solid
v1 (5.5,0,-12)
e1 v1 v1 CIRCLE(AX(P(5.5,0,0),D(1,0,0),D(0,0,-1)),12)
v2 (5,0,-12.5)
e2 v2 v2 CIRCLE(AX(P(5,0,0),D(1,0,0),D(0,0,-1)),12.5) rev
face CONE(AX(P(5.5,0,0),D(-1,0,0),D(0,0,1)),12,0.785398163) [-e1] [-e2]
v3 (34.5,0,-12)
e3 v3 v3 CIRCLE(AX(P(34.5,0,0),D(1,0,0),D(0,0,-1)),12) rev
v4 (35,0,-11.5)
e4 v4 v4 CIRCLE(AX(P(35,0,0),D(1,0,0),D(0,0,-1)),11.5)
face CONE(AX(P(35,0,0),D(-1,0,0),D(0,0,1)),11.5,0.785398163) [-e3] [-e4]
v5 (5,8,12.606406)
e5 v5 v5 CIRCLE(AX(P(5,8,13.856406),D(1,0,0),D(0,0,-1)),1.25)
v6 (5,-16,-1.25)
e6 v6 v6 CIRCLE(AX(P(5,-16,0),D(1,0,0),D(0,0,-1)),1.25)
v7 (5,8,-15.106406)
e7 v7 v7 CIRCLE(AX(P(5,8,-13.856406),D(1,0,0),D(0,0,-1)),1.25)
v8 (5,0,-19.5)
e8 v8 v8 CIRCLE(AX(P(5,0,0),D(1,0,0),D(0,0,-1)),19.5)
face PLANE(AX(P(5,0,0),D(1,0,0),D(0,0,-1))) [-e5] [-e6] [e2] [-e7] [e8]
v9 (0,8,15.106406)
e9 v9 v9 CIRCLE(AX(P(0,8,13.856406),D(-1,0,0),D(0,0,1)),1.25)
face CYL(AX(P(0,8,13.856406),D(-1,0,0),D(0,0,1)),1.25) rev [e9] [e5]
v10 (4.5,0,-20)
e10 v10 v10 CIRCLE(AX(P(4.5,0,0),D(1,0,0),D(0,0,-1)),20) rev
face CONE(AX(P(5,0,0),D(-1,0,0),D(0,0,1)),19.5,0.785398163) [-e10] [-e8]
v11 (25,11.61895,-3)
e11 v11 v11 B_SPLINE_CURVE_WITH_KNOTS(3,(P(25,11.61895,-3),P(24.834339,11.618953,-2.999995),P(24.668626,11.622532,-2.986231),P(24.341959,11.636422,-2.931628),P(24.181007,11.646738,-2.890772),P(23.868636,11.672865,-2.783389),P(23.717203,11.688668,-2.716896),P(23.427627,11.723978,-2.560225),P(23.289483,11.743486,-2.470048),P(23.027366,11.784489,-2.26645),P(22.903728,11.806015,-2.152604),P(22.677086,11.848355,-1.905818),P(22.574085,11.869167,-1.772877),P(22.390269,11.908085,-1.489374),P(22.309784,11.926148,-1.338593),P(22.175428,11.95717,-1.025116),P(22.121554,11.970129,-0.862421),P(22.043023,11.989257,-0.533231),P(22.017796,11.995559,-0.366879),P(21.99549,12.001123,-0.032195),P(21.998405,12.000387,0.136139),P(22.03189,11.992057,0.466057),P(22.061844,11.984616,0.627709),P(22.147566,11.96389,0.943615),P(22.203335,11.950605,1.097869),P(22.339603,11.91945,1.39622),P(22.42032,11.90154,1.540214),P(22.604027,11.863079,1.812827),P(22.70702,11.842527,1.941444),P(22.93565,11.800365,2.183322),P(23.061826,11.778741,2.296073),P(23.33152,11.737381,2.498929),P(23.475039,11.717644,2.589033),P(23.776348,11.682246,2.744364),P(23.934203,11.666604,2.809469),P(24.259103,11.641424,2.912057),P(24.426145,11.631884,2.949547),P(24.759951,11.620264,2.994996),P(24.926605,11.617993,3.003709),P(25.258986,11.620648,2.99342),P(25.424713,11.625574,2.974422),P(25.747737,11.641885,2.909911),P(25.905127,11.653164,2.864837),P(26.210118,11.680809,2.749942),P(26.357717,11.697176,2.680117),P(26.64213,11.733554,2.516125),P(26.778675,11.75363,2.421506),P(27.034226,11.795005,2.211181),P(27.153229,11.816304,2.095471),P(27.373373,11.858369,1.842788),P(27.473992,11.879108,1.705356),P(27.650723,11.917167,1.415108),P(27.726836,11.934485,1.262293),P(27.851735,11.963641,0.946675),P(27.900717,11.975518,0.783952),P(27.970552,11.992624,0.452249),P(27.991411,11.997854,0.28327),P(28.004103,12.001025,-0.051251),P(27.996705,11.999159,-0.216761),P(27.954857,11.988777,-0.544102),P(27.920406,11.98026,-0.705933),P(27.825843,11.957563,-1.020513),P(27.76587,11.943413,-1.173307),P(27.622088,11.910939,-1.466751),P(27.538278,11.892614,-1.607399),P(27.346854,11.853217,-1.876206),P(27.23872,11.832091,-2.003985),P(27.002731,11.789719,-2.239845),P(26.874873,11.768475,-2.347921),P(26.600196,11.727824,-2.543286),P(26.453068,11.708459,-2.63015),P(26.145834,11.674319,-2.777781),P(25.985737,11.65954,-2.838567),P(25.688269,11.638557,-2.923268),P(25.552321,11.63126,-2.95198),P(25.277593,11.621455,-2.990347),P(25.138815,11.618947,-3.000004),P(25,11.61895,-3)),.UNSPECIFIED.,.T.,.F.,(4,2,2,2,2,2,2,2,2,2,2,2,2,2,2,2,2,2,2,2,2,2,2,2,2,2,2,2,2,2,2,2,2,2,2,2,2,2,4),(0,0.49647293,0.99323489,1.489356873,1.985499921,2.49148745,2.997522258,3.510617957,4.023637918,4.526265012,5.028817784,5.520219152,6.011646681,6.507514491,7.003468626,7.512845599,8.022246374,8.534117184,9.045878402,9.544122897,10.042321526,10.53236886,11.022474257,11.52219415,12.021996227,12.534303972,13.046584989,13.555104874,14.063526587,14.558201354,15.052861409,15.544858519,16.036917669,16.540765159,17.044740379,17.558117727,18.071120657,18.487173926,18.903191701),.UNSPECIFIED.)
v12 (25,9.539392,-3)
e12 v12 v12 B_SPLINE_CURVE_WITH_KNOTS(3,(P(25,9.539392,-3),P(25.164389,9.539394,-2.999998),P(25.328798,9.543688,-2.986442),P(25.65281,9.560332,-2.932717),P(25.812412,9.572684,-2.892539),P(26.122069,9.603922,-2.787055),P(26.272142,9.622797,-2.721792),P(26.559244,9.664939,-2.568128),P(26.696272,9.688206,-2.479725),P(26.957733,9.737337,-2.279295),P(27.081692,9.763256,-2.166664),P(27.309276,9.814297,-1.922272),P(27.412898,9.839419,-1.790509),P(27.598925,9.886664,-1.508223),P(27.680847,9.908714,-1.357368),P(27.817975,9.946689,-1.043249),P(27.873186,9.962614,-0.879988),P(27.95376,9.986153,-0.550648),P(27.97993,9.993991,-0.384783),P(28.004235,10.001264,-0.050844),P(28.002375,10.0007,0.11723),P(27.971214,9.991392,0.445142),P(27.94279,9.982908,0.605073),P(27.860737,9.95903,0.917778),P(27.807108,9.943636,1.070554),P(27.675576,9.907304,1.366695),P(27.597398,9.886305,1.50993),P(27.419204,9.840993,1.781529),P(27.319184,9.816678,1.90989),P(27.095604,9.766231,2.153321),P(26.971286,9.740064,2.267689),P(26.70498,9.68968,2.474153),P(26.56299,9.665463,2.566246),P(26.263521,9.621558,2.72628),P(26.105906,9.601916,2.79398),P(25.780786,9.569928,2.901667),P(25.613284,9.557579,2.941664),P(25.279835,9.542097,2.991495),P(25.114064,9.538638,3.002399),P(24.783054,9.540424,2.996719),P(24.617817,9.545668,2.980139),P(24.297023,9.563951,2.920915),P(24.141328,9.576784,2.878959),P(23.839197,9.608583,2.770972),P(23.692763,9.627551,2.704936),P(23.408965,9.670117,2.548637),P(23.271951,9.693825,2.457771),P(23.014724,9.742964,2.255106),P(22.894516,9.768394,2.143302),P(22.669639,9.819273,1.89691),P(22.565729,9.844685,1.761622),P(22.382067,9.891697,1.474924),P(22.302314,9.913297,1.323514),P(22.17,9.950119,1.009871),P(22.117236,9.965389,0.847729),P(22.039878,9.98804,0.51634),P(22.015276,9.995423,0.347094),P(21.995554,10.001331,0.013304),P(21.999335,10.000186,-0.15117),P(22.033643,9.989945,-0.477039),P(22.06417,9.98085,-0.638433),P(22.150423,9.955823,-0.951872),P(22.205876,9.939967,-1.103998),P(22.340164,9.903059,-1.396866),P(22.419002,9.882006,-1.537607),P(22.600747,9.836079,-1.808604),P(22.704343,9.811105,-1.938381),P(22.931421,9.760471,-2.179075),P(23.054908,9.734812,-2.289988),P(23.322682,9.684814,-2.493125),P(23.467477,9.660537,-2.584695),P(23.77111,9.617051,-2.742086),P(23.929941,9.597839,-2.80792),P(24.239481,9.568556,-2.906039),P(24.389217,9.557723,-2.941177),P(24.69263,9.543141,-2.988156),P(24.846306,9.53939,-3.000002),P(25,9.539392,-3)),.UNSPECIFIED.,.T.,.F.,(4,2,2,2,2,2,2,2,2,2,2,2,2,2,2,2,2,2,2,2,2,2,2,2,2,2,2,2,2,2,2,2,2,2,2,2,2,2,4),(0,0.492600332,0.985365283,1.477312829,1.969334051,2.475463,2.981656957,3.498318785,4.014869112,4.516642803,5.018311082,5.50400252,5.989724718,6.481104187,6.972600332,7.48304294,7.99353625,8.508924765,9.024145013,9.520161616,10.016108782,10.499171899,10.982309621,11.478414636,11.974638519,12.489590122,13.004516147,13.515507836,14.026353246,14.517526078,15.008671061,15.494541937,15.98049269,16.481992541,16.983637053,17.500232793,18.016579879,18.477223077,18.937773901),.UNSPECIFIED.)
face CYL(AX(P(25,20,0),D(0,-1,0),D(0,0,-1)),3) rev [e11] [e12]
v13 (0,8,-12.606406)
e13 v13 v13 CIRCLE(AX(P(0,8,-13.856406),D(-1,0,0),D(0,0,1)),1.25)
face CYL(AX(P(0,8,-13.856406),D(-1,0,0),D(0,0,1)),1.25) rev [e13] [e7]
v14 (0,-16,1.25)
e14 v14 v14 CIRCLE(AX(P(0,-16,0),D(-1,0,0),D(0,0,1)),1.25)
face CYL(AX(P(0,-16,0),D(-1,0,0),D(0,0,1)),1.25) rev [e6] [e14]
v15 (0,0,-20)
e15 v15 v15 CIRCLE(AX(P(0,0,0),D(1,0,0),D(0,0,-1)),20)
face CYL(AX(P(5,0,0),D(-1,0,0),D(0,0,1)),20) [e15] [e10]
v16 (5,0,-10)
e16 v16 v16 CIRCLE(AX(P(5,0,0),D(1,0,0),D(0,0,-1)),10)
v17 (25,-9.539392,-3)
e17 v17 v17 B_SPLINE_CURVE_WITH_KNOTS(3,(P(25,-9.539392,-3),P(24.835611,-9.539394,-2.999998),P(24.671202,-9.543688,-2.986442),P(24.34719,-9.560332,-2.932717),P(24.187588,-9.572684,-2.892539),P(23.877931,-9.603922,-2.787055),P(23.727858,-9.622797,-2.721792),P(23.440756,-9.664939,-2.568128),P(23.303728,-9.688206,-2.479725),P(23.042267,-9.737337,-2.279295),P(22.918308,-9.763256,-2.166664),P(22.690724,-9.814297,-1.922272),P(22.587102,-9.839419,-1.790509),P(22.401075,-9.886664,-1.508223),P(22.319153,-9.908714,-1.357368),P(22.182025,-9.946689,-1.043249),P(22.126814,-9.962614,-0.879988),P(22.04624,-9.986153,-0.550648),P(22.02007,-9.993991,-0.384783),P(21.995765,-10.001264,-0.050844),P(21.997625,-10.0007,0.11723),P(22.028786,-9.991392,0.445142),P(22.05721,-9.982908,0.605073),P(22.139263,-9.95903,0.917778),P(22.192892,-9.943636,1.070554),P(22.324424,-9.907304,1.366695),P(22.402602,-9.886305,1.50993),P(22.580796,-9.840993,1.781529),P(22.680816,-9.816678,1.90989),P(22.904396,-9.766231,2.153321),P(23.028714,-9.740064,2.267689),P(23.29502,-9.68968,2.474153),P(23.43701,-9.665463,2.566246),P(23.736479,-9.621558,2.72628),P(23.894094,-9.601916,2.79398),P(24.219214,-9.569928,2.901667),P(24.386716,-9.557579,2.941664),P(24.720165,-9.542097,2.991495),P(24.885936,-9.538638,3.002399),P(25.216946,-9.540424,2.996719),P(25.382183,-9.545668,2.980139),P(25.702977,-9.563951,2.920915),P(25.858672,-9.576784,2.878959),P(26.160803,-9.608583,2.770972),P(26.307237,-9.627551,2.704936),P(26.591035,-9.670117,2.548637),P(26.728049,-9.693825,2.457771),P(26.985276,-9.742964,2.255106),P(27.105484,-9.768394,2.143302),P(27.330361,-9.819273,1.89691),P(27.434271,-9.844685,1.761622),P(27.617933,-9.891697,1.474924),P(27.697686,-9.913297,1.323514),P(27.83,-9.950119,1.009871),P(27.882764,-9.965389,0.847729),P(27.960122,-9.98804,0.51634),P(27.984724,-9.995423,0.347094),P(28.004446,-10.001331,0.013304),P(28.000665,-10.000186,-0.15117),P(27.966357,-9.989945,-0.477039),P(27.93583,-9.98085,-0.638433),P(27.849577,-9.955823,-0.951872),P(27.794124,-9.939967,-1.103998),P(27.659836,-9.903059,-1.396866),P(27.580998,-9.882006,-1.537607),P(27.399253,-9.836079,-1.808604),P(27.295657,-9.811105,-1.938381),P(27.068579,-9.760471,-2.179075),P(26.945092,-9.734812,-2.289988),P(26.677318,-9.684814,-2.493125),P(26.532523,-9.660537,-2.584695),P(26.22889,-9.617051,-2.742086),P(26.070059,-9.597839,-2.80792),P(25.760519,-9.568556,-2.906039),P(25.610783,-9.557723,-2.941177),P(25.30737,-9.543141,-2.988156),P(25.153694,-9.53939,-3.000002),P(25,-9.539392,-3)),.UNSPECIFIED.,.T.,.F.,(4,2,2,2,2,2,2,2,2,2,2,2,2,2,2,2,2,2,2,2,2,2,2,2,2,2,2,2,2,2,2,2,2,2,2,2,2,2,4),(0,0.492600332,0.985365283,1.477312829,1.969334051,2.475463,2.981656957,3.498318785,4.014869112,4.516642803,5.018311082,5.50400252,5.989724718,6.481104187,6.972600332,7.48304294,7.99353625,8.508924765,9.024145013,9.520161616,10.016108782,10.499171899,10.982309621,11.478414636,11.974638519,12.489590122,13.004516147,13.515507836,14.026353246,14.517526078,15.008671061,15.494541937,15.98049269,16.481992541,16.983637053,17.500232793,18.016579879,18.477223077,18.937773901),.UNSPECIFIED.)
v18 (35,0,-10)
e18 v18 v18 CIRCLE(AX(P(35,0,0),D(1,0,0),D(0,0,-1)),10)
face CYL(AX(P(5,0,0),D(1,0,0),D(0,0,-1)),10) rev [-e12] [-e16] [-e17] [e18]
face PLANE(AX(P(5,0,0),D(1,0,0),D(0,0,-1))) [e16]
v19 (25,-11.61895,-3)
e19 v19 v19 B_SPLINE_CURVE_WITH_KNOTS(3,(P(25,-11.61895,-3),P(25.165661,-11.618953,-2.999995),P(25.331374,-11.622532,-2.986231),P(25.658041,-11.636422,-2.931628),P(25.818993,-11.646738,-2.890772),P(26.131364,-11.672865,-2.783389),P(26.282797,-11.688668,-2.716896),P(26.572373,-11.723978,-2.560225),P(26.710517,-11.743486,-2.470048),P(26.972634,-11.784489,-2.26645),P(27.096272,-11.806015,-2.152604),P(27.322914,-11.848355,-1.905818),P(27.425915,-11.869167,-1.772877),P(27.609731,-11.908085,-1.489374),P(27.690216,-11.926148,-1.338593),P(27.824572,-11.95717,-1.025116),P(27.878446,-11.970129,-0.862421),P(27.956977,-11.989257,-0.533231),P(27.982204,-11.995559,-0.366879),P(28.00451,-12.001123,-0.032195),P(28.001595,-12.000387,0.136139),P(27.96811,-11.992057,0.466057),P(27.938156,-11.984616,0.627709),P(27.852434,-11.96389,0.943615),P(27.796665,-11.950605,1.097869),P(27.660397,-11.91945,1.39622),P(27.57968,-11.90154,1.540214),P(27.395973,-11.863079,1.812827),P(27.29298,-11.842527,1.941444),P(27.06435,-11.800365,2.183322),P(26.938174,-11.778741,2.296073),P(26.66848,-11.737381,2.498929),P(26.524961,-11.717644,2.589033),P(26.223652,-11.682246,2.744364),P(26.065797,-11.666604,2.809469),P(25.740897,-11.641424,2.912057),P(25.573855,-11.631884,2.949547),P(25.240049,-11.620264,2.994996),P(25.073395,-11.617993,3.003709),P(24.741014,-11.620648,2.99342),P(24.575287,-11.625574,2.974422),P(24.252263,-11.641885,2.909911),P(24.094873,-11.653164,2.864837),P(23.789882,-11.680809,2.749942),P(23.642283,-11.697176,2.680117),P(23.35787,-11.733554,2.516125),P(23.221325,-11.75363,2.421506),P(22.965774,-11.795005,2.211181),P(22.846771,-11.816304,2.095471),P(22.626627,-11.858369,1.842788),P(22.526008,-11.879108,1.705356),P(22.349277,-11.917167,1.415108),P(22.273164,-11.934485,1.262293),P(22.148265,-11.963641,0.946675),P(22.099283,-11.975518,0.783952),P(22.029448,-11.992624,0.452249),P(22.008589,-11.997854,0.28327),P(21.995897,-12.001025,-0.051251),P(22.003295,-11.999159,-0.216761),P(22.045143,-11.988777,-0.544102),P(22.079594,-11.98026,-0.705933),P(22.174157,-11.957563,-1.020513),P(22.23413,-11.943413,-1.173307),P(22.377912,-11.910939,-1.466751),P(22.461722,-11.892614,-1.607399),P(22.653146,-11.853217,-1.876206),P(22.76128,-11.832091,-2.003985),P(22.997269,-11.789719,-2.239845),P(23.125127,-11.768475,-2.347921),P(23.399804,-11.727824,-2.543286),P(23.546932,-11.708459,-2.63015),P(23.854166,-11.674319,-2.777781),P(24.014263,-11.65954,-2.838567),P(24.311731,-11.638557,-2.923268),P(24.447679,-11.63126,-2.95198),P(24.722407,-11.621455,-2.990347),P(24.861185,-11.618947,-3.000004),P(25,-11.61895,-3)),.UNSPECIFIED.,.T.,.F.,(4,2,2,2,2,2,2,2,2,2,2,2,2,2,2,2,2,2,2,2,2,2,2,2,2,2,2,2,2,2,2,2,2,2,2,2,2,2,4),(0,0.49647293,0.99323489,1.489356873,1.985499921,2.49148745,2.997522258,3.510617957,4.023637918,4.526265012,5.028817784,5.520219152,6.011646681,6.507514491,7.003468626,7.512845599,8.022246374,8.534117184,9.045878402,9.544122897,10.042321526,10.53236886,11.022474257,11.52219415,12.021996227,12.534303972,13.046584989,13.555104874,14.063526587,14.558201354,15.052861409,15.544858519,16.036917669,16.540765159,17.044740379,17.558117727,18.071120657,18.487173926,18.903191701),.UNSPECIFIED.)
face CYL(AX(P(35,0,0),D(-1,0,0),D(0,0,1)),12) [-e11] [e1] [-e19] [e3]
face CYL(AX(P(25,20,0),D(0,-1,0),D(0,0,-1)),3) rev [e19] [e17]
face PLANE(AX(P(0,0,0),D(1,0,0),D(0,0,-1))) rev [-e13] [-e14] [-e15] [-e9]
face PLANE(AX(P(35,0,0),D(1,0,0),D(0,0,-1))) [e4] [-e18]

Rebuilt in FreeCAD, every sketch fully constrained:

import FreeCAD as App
import Part
import Sketcher

V = App.Vector
Q = App.Units.Quantity


def edges_at(feature, points):
    """Names of the edges that pass closest to the given points."""
    edges = feature.Shape.Edges
    near = lambda p: min(range(len(edges)), key=lambda i: edges[i].distToShape(Part.Vertex(*p))[0])
    return sorted({f"Edge{near(p) + 1}" for p in points})

doc = App.newDocument("Part")
params = doc.addObject("Spreadsheet::Sheet", "Params")
for row, (alias, value) in enumerate([
    ("sketch1_diameter", "40 mm"),
    ("pad1_length", "5 mm"),
    ("sketch2_diameter", "2.5 mm"),
    ("hole_diameter", "2.5 mm"),
    ("hole_depth", "7.5 mm"),
    ("sketch3_diameter", "24 mm"),
    ("pad2_length", "30 mm"),
    ("sketch4_diameter", "20 mm"),
    ("pocket1_length", "30 mm"),
    ("chamfer_size", "0.5 mm"),
    ("sketch5_diameter", "6 mm"),
    ("chamfer2_size", "0.5 mm"),
    ("chamfer3_size", "0.5 mm"),
], start=1):
    params.set(f"A{row}", alias)
    params.set(f"B{row}", "=" + value)
    params.setAlias(f"B{row}", alias)

body = doc.addObject("PartDesign::Body", "Body")

sketch1 = body.newObject("Sketcher::SketchObject", "Sketch")
sketch1.AttachmentSupport = (doc.getObject("YZ_Plane"), [""])
sketch1.MapMode = "FlatFace"
sketch1.addGeometry(Part.Circle(V(0, 0, 0), V(0, 0, 1), 20), False)
sketch1.addConstraint([
    Sketcher.Constraint("Coincident", 0, 3, -1, 1),
    Sketcher.Constraint("Diameter", 0, Q("40 mm")),
])
sketch1.setExpression("Constraints[1]", "Params.sketch1_diameter")
pad1 = body.newObject("PartDesign::Pad", "Pad")
pad1.Profile = sketch1
pad1.setExpression("Length", "Params.pad1_length")

sketch2 = body.newObject("Sketcher::SketchObject", "Sketch001")
sketch2.AttachmentSupport = (doc.getObject("YZ_Plane"), [""])
sketch2.MapMode = "FlatFace"
sketch2.addGeometry([
    Part.Circle(V(8, -13.9, 0), V(0, 0, 1), 1.2),
    Part.Circle(V(8, 13.9, 0), V(0, 0, 1), 1.2),
    Part.Circle(V(-16, 0, 0), V(0, 0, 1), 1.2),
], False)
sketch2.addConstraint([
    Sketcher.Constraint("Equal", 0, 1),
    Sketcher.Constraint("Equal", 1, 2),
    Sketcher.Constraint("Symmetric", 0, 3, 1, 3, -1),
    Sketcher.Constraint("PointOnObject", 2, 3, -1),
    Sketcher.Constraint("Diameter", 0, Q("2.5 mm")),
    Sketcher.Constraint("DistanceX", -1, 1, 0, 3, Q("8 mm")),
    Sketcher.Constraint("DistanceX", 2, 3, -1, 1, Q("16 mm")),
    Sketcher.Constraint("DistanceY", 0, 3, -1, 1, Q("13.856406 mm")),
])
sketch2.setExpression("Constraints[4]", "Params.sketch2_diameter")
doc.recompute()
hole = body.newObject("PartDesign::Hole", "Hole")
hole.Profile = sketch2
hole.ThreadType = "None"
hole.setExpression("Diameter", "Params.hole_diameter")
hole.DepthType = "Dimension"
hole.setExpression("Depth", "Params.hole_depth")
hole.DrillPoint = "Angled"
hole.DrillPointAngle = 118
hole.Reversed = True

sketch3 = body.newObject("Sketcher::SketchObject", "Sketch002")
sketch3.AttachmentSupport = (doc.getObject("YZ_Plane"), [""])
sketch3.MapMode = "FlatFace"
sketch3.AttachmentOffset = App.Placement(V(0, 0, 5), App.Rotation())
sketch3.addGeometry(Part.Circle(V(0, 0, 0), V(0, 0, 1), 12), False)
sketch3.addConstraint([
    Sketcher.Constraint("Coincident", 0, 3, -1, 1),
    Sketcher.Constraint("Diameter", 0, Q("24 mm")),
])
sketch3.setExpression("Constraints[1]", "Params.sketch3_diameter")
pad2 = body.newObject("PartDesign::Pad", "Pad001")
pad2.Profile = sketch3
pad2.setExpression("Length", "Params.pad2_length")

sketch4 = body.newObject("Sketcher::SketchObject", "Sketch003")
sketch4.AttachmentSupport = (doc.getObject("YZ_Plane"), [""])
sketch4.MapMode = "FlatFace"
sketch4.AttachmentOffset = App.Placement(V(0, 0, 35), App.Rotation())
sketch4.addGeometry(Part.Circle(V(0, 0, 0), V(0, 0, 1), 10), False)
sketch4.addConstraint([
    Sketcher.Constraint("Coincident", 0, 3, -1, 1),
    Sketcher.Constraint("Diameter", 0, Q("20 mm")),
])
sketch4.setExpression("Constraints[1]", "Params.sketch4_diameter")
pocket1 = body.newObject("PartDesign::Pocket", "Pocket")
pocket1.Profile = sketch4
pocket1.setExpression("Length", "Params.pocket1_length")
doc.recompute()

chamfer = body.newObject("PartDesign::Chamfer", "Chamfer")
chamfer.Base = (pocket1, edges_at(pocket1, [(35, 0, 12)]))
chamfer.setExpression("Size", "Params.chamfer_size")

sketch5 = body.newObject("Sketcher::SketchObject", "Sketch004")
sketch5.AttachmentSupport = (doc.getObject("XZ_Plane"), [""])
sketch5.MapMode = "FlatFace"
sketch5.addGeometry(Part.Circle(V(25, 0, 0), V(0, 0, 1), 3), False)
sketch5.addConstraint([
    Sketcher.Constraint("PointOnObject", 0, 3, -1),
    Sketcher.Constraint("Diameter", 0, Q("6 mm")),
    Sketcher.Constraint("DistanceX", -1, 1, 0, 3, Q("25 mm")),
])
sketch5.setExpression("Constraints[1]", "Params.sketch5_diameter")
pocket2 = body.newObject("PartDesign::Pocket", "Pocket001")
pocket2.Profile = sketch5
pocket2.Type = "ThroughAll"
pocket2.Midplane = True
doc.recompute()

chamfer2 = body.newObject("PartDesign::Chamfer", "Chamfer001")
chamfer2.Base = (pocket2, edges_at(pocket2, [(5, 0, 20)]))
chamfer2.setExpression("Size", "Params.chamfer2_size")
doc.recompute()

chamfer3 = body.newObject("PartDesign::Chamfer", "Chamfer002")
chamfer3.Base = (chamfer2, edges_at(chamfer2, [(5, 0, 12)]))
chamfer3.setExpression("Size", "Params.chamfer3_size")

doc.recompute()
